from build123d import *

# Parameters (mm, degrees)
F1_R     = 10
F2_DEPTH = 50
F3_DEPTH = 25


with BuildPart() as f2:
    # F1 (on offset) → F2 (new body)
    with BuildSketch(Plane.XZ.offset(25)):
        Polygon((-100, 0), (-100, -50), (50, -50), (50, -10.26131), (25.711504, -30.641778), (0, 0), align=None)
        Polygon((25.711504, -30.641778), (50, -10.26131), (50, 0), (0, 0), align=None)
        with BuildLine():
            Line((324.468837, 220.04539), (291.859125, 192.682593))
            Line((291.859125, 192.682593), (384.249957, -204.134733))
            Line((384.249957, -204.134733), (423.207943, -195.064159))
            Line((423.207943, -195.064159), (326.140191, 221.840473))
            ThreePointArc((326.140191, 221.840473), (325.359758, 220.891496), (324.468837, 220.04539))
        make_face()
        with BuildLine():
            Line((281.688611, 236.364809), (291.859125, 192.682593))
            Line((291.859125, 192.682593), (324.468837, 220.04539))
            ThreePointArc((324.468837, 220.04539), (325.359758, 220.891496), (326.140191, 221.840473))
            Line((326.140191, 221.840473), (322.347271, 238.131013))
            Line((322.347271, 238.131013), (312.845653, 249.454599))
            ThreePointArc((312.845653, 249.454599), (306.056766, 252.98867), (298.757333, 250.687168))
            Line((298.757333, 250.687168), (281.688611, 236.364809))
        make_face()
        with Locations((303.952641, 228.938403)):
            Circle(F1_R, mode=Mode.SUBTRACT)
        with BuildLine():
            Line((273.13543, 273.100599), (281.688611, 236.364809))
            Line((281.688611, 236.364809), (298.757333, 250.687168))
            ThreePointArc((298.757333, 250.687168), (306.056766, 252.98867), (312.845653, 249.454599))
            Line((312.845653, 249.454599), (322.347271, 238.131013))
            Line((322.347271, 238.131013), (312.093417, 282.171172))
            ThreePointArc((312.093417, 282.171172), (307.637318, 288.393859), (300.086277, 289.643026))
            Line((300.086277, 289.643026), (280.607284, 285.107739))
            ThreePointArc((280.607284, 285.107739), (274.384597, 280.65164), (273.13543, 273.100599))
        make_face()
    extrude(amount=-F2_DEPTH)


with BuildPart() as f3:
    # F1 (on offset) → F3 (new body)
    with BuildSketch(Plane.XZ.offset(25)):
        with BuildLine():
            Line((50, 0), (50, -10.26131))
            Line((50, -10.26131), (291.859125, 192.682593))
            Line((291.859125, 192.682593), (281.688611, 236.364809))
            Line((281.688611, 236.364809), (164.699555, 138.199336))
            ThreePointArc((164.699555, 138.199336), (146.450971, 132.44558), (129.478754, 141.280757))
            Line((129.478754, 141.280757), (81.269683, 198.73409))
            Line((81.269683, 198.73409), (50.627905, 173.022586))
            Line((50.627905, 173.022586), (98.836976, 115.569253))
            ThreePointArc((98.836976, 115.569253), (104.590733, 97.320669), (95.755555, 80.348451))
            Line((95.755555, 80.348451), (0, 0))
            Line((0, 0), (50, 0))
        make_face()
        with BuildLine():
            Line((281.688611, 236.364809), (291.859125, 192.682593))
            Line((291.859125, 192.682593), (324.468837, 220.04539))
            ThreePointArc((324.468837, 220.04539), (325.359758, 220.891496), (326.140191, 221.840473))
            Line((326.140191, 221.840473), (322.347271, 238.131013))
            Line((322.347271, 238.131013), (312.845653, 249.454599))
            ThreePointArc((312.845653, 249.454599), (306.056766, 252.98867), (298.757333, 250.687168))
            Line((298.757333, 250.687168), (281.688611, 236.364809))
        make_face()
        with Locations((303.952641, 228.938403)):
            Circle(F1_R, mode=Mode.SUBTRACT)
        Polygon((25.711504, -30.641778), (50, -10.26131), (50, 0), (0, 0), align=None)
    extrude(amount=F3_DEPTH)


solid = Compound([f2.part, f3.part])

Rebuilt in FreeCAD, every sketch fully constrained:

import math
import FreeCAD as App
import Part
import Sketcher
from FreeCAD import Vector
Q = App.Units.Quantity

doc = App.newDocument("Part")
body = doc.addObject("PartDesign::Body", "Body")
body.AllowCompound = True

# Sketch on XZ plane
sketch1 = body.newObject("Sketcher::SketchObject", "Sketch")
sketch1.AttachmentSupport = (doc.getObject("XZ_Plane"), [""])
sketch1.MapMode = "FlatFace"
sketch1.AttachmentOffset = App.Placement(Vector(0, 0, 25), App.Rotation())
sketch1.addGeometry([
    Part.LineSegment(Vector(-100, 0, 0), Vector(-100, -50, 0)),  # 0
    Part.LineSegment(Vector(-100, -50, 0), Vector(50, -50, 0)),  # 1
    Part.LineSegment(Vector(50, -50, 0), Vector(50, 0, 0)),  # 2
    Part.LineSegment(Vector(50, 0, 0), Vector(-100, 0, 0)),  # 3
    Part.LineSegment(Vector(291.859125, 192.682593, 0), Vector(384.249957, -204.134733, 0)),  # 4
    Part.LineSegment(Vector(384.249957, -204.134733, 0), Vector(423.207943, -195.064159, 0)),  # 5
    Part.LineSegment(Vector(423.207943, -195.064159, 0), Vector(326.140191, 221.840473, 0)),  # 6
    Part.LineSegment(Vector(326.140191, 221.840473, 0), Vector(322.347271, 238.131013, 0)),  # 7
    Part.LineSegment(Vector(322.347271, 238.131013, 0), Vector(312.093417, 282.171172, 0)),  # 8
    Part.ArcOfCircle(Part.Circle(Vector(302.353919, 279.903528, 0), Vector(0, 0, 1), 10.000001), math.radians(13.106653), math.radians(103.106641)),  # 9
    Part.LineSegment(Vector(300.086277, 289.643026, 0), Vector(280.607284, 285.107739, 0)),  # 10
    Part.ArcOfCircle(Part.Circle(Vector(282.874928, 275.368241, 0), Vector(0, 0, 1), 10.000001), math.radians(103.106653), math.radians(193.106641)),  # 11
    Part.LineSegment(Vector(273.13543, 273.100599, 0), Vector(281.688611, 236.364809, 0)),  # 12
    Part.LineSegment(Vector(281.688611, 236.364809, 0), Vector(291.859125, 192.682593, 0)),  # 13
    Part.Circle(Vector(303.952641, 228.938403, 0), Vector(0, 0, 1), 10),  # 14
], False)
sketch1.addConstraint([
    Sketcher.Constraint("Coincident", 0, 2, 1, 1),
    Sketcher.Constraint("Coincident", 1, 2, 2, 1),
    Sketcher.Constraint("Coincident", 2, 2, 3, 1),
    Sketcher.Constraint("Coincident", 3, 2, 0, 1),
    Sketcher.Constraint("Coincident", 4, 2, 5, 1),
    Sketcher.Constraint("Coincident", 5, 2, 6, 1),
    Sketcher.Constraint("Coincident", 6, 2, 7, 1),
    Sketcher.Constraint("Coincident", 7, 2, 8, 1),
    Sketcher.Constraint("Coincident", 8, 2, 9, 1),
    Sketcher.Constraint("Coincident", 9, 2, 10, 1),
    Sketcher.Constraint("Coincident", 10, 2, 11, 1),
    Sketcher.Constraint("Coincident", 11, 2, 12, 1),
    Sketcher.Constraint("Coincident", 12, 2, 13, 1),
    Sketcher.Constraint("Coincident", 13, 2, 4, 1),
    Sketcher.Constraint("Vertical", 0),
    Sketcher.Constraint("Horizontal", 1),
    Sketcher.Constraint("Vertical", 2),
    Sketcher.Constraint("Horizontal", 3),
    Sketcher.Constraint("PointOnObject", 2, 2, -1),
    Sketcher.Constraint("Diameter", 14, Q("20 mm")),
    Sketcher.Constraint("Radius", 9, Q("10.000001 mm")),
    Sketcher.Constraint("Radius", 11, Q("10.000001 mm")),
    Sketcher.Constraint("DistanceX", 1, 1, 1, 2, Q("150 mm")),
    Sketcher.Constraint("DistanceY", 0, 2, 0, 1, Q("50 mm")),
    Sketcher.Constraint("Distance", 5, Q("40 mm")),
    Sketcher.Constraint("Distance", 10, Q("20 mm")),
    Sketcher.Constraint("DistanceX", 0, 2, -1, 1, Q("100 mm")),
    Sketcher.Constraint("DistanceY", -1, 1, 11, 2, Q("273.100599 mm")),
    Sketcher.Constraint("DistanceX", 14, 3, 5, 2, Q("119.255302 mm")),
    Sketcher.Constraint("DistanceY", 6, 2, 8, 2, Q("60.330699 mm")),
    Sketcher.Constraint("DistanceY", 9, 3, 9, 2, Q("9.739498 mm")),
    Sketcher.Constraint("DistanceX", 11, 2, 11, 3, Q("9.739498 mm")),
    Sketcher.Constraint("Distance", 13, Q("44.850589 mm")),
    Sketcher.Constraint("DistanceX", -1, 1, 9, 3, Q("302.353919 mm")),
    Sketcher.Constraint("DistanceX", -1, 1, 11, 3, Q("282.874928 mm")),
    Sketcher.Constraint("DistanceX", -1, 1, 14, 3, Q("303.952641 mm")),
    Sketcher.Constraint("DistanceY", 5, 2, -1, 1, Q("195.064159 mm")),
    Sketcher.Constraint("DistanceX", -1, 1, 6, 2, Q("326.140191 mm")),
    Sketcher.Constraint("DistanceX", -1, 1, 7, 2, Q("322.347271 mm")),
    Sketcher.Constraint("DistanceY", -1, 1, 8, 2, Q("282.171172 mm")),
    Sketcher.Constraint("DistanceY", -1, 1, 10, 2, Q("285.107739 mm")),
    Sketcher.Constraint("DistanceX", -1, 1, 12, 2, Q("281.688611 mm")),
    Sketcher.Constraint("DistanceY", -1, 1, 12, 2, Q("236.364809 mm")),
    Sketcher.Constraint("DistanceY", 14, 3, 11, 3, Q("46.429838 mm")),
    Sketcher.Constraint("DistanceX", 11, 3, 4, 2, Q("101.375029 mm")),
    Sketcher.Constraint("DistanceY", 6, 2, 7, 2, Q("16.29054 mm")),
    Sketcher.Constraint("DistanceY", 13, 2, 14, 3, Q("36.25581 mm")),
])
pad1 = body.newObject("PartDesign::Pad", "Pad")
pad1.Profile = sketch1
pad1.Length = 50
pad1.Reversed = True
body2 = doc.addObject("PartDesign::Body", "Body001")

# Sketch on XZ plane
sketch2 = body2.newObject("Sketcher::SketchObject", "Sketch001")
sketch2.AttachmentSupport = (doc.getObject("XZ_Plane001"), [""])
sketch2.MapMode = "FlatFace"
sketch2.AttachmentOffset = App.Placement(Vector(0, 0, 25), App.Rotation())
sketch2.addGeometry([
    Part.LineSegment(Vector(50, -10.3, 0), Vector(291.9, 192.7, 0)),  # 0
    Part.LineSegment(Vector(291.9, 192.7, 0), Vector(324.5, 220, 0)),  # 1
    Part.ArcOfCircle(Part.Circle(Vector(318, 227.7, 0), Vector(0, 0, 1), 10), math.radians(-50), math.radians(-35.91)),  # 2
    Part.LineSegment(Vector(326.1, 221.8, 0), Vector(322.3, 238.1, 0)),  # 3
    Part.LineSegment(Vector(322.3, 238.1, 0), Vector(312.8, 249.5, 0)),  # 4
    Part.ArcOfCircle(Part.Circle(Vector(305.2, 243, 0), Vector(0, 0, 1), 10), math.radians(40), math.radians(130)),  # 5
    Part.LineSegment(Vector(298.8, 250.7, 0), Vector(281.7, 236.4, 0)),  # 6
    Part.LineSegment(Vector(281.7, 236.4, 0), Vector(164.7, 138.2, 0)),  # 7
    Part.ArcOfCircle(Part.Circle(Vector(148.6, 157.4, 0), Vector(0, 0, 1), 25), math.radians(-140), math.radians(-50)),  # 8
    Part.LineSegment(Vector(129.5, 141.3, 0), Vector(81.3, 198.7, 0)),  # 9
    Part.LineSegment(Vector(81.3, 198.7, 0), Vector(50.6, 173, 0)),  # 10
    Part.LineSegment(Vector(50.6, 173, 0), Vector(98.8, 115.6, 0)),  # 11
    Part.ArcOfCircle(Part.Circle(Vector(79.7, 99.5, 0), Vector(0, 0, 1), 25), math.radians(-50), math.radians(40)),  # 12
    Part.LineSegment(Vector(95.8, 80.3, 0), Vector(0, 0, 0)),  # 13
    Part.LineSegment(Vector(0, 0, 0), Vector(25.7, -30.6, 0)),  # 14
    Part.LineSegment(Vector(25.7, -30.6, 0), Vector(50, -10.3, 0)),  # 15
    Part.Circle(Vector(304, 228.9, 0), Vector(0, 0, 1), 10),  # 16
], False)
sketch2.addConstraint([
    Sketcher.Constraint("Coincident", 0, 2, 1, 1),
    Sketcher.Constraint("Tangent", 1, 2, 2, 1),
    Sketcher.Constraint("Coincident", 2, 2, 3, 1),
    Sketcher.Constraint("Coincident", 3, 2, 4, 1),
    Sketcher.Constraint("Tangent", 4, 2, 5, 1),
    Sketcher.Constraint("Tangent", 5, 2, 6, 1),
    Sketcher.Constraint("Coincident", 6, 2, 7, 1),
    Sketcher.Constraint("Tangent", 7, 2, 8, 2),
    Sketcher.Constraint("Tangent", 8, 1, 9, 1),
    Sketcher.Constraint("Coincident", 9, 2, 10, 1),
    Sketcher.Constraint("Coincident", 10, 2, 11, 1),
    Sketcher.Constraint("Tangent", 11, 2, 12, 2),
    Sketcher.Constraint("Tangent", 12, 1, 13, 1),
    Sketcher.Constraint("Coincident", 13, 2, 14, 1),
    Sketcher.Constraint("Coincident", 14, 2, 15, 1),
    Sketcher.Constraint("Coincident", 15, 2, 0, 1),
    Sketcher.Constraint("Coincident", 13, 2, -1, 1),
    Sketcher.Constraint("Equal", 8, 12),
    Sketcher.Constraint("Equal", 5, 16),
    Sketcher.Constraint("Parallel", 0, 1),
    Sketcher.Constraint("Perpendicular", 1, 4),
    Sketcher.Constraint("Perpendicular", 4, 6),
    Sketcher.Constraint("Parallel", 6, 7),
    Sketcher.Constraint("Perpendicular", 7, 9),
    Sketcher.Constraint("Perpendicular", 9, 10),
    Sketcher.Constraint("Perpendicular", 10, 11),
    Sketcher.Constraint("Perpendicular", 11, 13),
    Sketcher.Constraint("Perpendicular", 13, 14),
    Sketcher.Constraint("Perpendicular", 14, 15),
    Sketcher.Constraint("Equal", 9, 11),
    Sketcher.Constraint("Equal", 10, 14),
    Sketcher.Constraint("Diameter", 16, Q("20 mm")),
    Sketcher.Constraint("Radius", 8, Q("25 mm")),
    Sketcher.Constraint("Angle", 0, Q("40 deg")),
    Sketcher.Constraint("Distance", 9, Q("75 mm")),
    Sketcher.Constraint("Distance", 10, Q("40 mm")),
    Sketcher.Constraint("Distance", 13, Q("125 mm")),
    Sketcher.Constraint("DistanceX", -1, 1, 15, 2, Q("50 mm")),
    Sketcher.Constraint("Radius", 2, Q("9.999982 mm")),
    Sketcher.Constraint("DistanceY", -1, 1, 4, 2, Q("249.454599 mm")),
    Sketcher.Constraint("DistanceY", -1, 1, 2, 3, Q("227.705821 mm")),
    Sketcher.Constraint("DistanceX", -1, 1, 16, 3, Q("303.952641 mm")),
    Sketcher.Constraint("DistanceX", -1, 1, 2, 2, Q("326.140191 mm")),
    Sketcher.Constraint("DistanceX", -1, 1, 3, 2, Q("322.347271 mm")),
    Sketcher.Constraint("DistanceX", -1, 1, 6, 2, Q("281.688611 mm")),
    Sketcher.Constraint("DistanceY", 16, 3, 5, 3, Q("14.08832 mm")),
    Sketcher.Constraint("DistanceY", 0, 2, 16, 3, Q("36.25581 mm")),
])
pad2 = body2.newObject("PartDesign::Pad", "Pad001")
pad2.Profile = sketch2
pad2.Length = 25

doc.recompute()
